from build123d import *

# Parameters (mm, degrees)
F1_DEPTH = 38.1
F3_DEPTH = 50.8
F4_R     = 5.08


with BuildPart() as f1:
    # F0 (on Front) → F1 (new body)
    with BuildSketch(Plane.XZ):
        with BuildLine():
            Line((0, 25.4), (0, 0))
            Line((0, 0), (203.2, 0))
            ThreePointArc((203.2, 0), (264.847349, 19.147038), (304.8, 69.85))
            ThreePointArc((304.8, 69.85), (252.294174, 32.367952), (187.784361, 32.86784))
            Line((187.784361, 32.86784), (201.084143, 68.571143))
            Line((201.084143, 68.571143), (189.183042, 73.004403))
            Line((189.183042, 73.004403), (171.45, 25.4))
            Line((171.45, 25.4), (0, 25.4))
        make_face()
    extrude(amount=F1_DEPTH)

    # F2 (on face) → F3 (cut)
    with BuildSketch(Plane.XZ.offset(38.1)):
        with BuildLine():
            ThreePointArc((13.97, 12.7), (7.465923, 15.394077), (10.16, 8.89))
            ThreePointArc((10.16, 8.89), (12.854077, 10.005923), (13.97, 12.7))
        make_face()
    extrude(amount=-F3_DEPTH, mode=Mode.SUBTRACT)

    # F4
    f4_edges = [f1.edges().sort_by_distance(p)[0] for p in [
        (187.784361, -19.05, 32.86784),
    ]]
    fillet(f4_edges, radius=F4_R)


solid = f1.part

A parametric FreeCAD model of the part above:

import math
import FreeCAD as App
import Part
import Sketcher

V = App.Vector
Q = App.Units.Quantity


def edges_at(feature, points):
    """Names of the edges that pass closest to the given points."""
    edges = feature.Shape.Edges
    near = lambda p: min(range(len(edges)), key=lambda i: edges[i].distToShape(Part.Vertex(*p))[0])
    return sorted({f"Edge{near(p) + 1}" for p in points})

doc = App.newDocument("Part")
body = doc.addObject("PartDesign::Body", "Body")

sketch1 = body.newObject("Sketcher::SketchObject", "Sketch")
sketch1.AttachmentSupport = (doc.getObject("XZ_Plane"), [""])
sketch1.MapMode = "FlatFace"
sketch1.addGeometry([
    Part.LineSegment(V(0, 25, 0), V(0, 0, 0)),
    Part.LineSegment(V(0, 0, 0), V(203, 0, 0)),
    Part.ArcOfCircle(Part.Circle(V(203, 109, 0), V(0, 0, 1), 109), math.radians(-90), math.radians(-21)),
    Part.ArcOfCircle(Part.Circle(V(221, 132, 0), V(0, 0, 1), 104), math.radians(-108), math.radians(-36)),
    Part.LineSegment(V(188, 33, 0), V(201, 69, 0)),
    Part.LineSegment(V(201, 69, 0), V(189, 73, 0)),
    Part.LineSegment(V(189, 73, 0), V(171, 25, 0)),
    Part.LineSegment(V(171, 25, 0), V(0, 25, 0)),
], False)
sketch1.addConstraint([
    Sketcher.Constraint("Coincident", 0, 2, 1, 1),
    Sketcher.Constraint("Tangent", 1, 2, 2, 1),
    Sketcher.Constraint("Coincident", 2, 2, 3, 2),
    Sketcher.Constraint("Coincident", 3, 1, 4, 1),
    Sketcher.Constraint("Coincident", 4, 2, 5, 1),
    Sketcher.Constraint("Coincident", 5, 2, 6, 1),
    Sketcher.Constraint("Coincident", 6, 2, 7, 1),
    Sketcher.Constraint("Coincident", 7, 2, 0, 1),
    Sketcher.Constraint("Vertical", 0),
    Sketcher.Constraint("Horizontal", 1),
    Sketcher.Constraint("Horizontal", 7),
    Sketcher.Constraint("Coincident", 0, 2, -1, 1),
    Sketcher.Constraint("Perpendicular", 4, 5),
    Sketcher.Constraint("Perpendicular", 5, 6),
    Sketcher.Constraint("DistanceX", 1, 1, 1, 2, Q("8 in")),
    Sketcher.Constraint("DistanceY", 0, 2, 0, 1, Q("1 in")),
    Sketcher.Constraint("Distance", 6, Q("2 in")),
    Sketcher.Constraint("DistanceX", -1, 1, 2, 2, Q("12 in")),
    Sketcher.Constraint("Distance", 4, Q("1.5 in")),
    Sketcher.Constraint("Distance", 5, Q("0.5 in")),
    Sketcher.Constraint("DistanceX", 7, 2, 7, 1, Q("6.75 in")),
    Sketcher.Constraint("DistanceY", -1, 1, 2, 2, Q("2.75 in")),
    Sketcher.Constraint("Radius", 3, Q("104.47853 mm")),
    Sketcher.Constraint("DistanceX", -1, 1, 3, 3, Q("220.809301 mm")),
])
pad1 = body.newObject("PartDesign::Pad", "Pad")
pad1.Profile = sketch1
pad1.Length = Q("1.5 in")

sketch2 = body.newObject("Sketcher::SketchObject", "Sketch001")
sketch2.AttachmentSupport = (doc.getObject("XZ_Plane"), [""])
sketch2.MapMode = "FlatFace"
sketch2.AttachmentOffset = App.Placement(V(0, 0, 1.5 * 25.4), App.Rotation())
sketch2.addGeometry([
    Part.ArcOfCircle(Part.Circle(V(10.2, 12.7, 0), V(0, 0, 1), 3.8), math.radians(0), math.radians(270)),
    Part.ArcOfCircle(Part.Circle(V(10.2, 12.7, 0), V(0, 0, 1), 3.8), math.radians(-90), math.radians(0)),
], False)
sketch2.addConstraint([
    Sketcher.Constraint("Tangent", 0, 1, 1, 2),
    Sketcher.Constraint("Coincident", 1, 1, 0, 2),
    Sketcher.Constraint("Horizontal", 1, 3, 0, 1),
    Sketcher.Constraint("Vertical", 0, 3, 1, 1),
    Sketcher.Constraint("Radius", 0, Q("0.15 in")),
    Sketcher.Constraint("DistanceX", -1, 1, 0, 3, Q("0.4 in")),
    Sketcher.Constraint("DistanceY", -1, 1, 0, 3, Q("0.5 in")),
])
pocket1 = body.newObject("PartDesign::Pocket", "Pocket")
pocket1.Profile = sketch2
pocket1.Length = Q("2 in")
doc.recompute()

fillet = body.newObject("PartDesign::Fillet", "Fillet")
fillet.Base = (pocket1, edges_at(pocket1, [(187.784, -19.05, 32.868)]))
fillet.Radius = Q("0.2 in")

doc.recompute()
